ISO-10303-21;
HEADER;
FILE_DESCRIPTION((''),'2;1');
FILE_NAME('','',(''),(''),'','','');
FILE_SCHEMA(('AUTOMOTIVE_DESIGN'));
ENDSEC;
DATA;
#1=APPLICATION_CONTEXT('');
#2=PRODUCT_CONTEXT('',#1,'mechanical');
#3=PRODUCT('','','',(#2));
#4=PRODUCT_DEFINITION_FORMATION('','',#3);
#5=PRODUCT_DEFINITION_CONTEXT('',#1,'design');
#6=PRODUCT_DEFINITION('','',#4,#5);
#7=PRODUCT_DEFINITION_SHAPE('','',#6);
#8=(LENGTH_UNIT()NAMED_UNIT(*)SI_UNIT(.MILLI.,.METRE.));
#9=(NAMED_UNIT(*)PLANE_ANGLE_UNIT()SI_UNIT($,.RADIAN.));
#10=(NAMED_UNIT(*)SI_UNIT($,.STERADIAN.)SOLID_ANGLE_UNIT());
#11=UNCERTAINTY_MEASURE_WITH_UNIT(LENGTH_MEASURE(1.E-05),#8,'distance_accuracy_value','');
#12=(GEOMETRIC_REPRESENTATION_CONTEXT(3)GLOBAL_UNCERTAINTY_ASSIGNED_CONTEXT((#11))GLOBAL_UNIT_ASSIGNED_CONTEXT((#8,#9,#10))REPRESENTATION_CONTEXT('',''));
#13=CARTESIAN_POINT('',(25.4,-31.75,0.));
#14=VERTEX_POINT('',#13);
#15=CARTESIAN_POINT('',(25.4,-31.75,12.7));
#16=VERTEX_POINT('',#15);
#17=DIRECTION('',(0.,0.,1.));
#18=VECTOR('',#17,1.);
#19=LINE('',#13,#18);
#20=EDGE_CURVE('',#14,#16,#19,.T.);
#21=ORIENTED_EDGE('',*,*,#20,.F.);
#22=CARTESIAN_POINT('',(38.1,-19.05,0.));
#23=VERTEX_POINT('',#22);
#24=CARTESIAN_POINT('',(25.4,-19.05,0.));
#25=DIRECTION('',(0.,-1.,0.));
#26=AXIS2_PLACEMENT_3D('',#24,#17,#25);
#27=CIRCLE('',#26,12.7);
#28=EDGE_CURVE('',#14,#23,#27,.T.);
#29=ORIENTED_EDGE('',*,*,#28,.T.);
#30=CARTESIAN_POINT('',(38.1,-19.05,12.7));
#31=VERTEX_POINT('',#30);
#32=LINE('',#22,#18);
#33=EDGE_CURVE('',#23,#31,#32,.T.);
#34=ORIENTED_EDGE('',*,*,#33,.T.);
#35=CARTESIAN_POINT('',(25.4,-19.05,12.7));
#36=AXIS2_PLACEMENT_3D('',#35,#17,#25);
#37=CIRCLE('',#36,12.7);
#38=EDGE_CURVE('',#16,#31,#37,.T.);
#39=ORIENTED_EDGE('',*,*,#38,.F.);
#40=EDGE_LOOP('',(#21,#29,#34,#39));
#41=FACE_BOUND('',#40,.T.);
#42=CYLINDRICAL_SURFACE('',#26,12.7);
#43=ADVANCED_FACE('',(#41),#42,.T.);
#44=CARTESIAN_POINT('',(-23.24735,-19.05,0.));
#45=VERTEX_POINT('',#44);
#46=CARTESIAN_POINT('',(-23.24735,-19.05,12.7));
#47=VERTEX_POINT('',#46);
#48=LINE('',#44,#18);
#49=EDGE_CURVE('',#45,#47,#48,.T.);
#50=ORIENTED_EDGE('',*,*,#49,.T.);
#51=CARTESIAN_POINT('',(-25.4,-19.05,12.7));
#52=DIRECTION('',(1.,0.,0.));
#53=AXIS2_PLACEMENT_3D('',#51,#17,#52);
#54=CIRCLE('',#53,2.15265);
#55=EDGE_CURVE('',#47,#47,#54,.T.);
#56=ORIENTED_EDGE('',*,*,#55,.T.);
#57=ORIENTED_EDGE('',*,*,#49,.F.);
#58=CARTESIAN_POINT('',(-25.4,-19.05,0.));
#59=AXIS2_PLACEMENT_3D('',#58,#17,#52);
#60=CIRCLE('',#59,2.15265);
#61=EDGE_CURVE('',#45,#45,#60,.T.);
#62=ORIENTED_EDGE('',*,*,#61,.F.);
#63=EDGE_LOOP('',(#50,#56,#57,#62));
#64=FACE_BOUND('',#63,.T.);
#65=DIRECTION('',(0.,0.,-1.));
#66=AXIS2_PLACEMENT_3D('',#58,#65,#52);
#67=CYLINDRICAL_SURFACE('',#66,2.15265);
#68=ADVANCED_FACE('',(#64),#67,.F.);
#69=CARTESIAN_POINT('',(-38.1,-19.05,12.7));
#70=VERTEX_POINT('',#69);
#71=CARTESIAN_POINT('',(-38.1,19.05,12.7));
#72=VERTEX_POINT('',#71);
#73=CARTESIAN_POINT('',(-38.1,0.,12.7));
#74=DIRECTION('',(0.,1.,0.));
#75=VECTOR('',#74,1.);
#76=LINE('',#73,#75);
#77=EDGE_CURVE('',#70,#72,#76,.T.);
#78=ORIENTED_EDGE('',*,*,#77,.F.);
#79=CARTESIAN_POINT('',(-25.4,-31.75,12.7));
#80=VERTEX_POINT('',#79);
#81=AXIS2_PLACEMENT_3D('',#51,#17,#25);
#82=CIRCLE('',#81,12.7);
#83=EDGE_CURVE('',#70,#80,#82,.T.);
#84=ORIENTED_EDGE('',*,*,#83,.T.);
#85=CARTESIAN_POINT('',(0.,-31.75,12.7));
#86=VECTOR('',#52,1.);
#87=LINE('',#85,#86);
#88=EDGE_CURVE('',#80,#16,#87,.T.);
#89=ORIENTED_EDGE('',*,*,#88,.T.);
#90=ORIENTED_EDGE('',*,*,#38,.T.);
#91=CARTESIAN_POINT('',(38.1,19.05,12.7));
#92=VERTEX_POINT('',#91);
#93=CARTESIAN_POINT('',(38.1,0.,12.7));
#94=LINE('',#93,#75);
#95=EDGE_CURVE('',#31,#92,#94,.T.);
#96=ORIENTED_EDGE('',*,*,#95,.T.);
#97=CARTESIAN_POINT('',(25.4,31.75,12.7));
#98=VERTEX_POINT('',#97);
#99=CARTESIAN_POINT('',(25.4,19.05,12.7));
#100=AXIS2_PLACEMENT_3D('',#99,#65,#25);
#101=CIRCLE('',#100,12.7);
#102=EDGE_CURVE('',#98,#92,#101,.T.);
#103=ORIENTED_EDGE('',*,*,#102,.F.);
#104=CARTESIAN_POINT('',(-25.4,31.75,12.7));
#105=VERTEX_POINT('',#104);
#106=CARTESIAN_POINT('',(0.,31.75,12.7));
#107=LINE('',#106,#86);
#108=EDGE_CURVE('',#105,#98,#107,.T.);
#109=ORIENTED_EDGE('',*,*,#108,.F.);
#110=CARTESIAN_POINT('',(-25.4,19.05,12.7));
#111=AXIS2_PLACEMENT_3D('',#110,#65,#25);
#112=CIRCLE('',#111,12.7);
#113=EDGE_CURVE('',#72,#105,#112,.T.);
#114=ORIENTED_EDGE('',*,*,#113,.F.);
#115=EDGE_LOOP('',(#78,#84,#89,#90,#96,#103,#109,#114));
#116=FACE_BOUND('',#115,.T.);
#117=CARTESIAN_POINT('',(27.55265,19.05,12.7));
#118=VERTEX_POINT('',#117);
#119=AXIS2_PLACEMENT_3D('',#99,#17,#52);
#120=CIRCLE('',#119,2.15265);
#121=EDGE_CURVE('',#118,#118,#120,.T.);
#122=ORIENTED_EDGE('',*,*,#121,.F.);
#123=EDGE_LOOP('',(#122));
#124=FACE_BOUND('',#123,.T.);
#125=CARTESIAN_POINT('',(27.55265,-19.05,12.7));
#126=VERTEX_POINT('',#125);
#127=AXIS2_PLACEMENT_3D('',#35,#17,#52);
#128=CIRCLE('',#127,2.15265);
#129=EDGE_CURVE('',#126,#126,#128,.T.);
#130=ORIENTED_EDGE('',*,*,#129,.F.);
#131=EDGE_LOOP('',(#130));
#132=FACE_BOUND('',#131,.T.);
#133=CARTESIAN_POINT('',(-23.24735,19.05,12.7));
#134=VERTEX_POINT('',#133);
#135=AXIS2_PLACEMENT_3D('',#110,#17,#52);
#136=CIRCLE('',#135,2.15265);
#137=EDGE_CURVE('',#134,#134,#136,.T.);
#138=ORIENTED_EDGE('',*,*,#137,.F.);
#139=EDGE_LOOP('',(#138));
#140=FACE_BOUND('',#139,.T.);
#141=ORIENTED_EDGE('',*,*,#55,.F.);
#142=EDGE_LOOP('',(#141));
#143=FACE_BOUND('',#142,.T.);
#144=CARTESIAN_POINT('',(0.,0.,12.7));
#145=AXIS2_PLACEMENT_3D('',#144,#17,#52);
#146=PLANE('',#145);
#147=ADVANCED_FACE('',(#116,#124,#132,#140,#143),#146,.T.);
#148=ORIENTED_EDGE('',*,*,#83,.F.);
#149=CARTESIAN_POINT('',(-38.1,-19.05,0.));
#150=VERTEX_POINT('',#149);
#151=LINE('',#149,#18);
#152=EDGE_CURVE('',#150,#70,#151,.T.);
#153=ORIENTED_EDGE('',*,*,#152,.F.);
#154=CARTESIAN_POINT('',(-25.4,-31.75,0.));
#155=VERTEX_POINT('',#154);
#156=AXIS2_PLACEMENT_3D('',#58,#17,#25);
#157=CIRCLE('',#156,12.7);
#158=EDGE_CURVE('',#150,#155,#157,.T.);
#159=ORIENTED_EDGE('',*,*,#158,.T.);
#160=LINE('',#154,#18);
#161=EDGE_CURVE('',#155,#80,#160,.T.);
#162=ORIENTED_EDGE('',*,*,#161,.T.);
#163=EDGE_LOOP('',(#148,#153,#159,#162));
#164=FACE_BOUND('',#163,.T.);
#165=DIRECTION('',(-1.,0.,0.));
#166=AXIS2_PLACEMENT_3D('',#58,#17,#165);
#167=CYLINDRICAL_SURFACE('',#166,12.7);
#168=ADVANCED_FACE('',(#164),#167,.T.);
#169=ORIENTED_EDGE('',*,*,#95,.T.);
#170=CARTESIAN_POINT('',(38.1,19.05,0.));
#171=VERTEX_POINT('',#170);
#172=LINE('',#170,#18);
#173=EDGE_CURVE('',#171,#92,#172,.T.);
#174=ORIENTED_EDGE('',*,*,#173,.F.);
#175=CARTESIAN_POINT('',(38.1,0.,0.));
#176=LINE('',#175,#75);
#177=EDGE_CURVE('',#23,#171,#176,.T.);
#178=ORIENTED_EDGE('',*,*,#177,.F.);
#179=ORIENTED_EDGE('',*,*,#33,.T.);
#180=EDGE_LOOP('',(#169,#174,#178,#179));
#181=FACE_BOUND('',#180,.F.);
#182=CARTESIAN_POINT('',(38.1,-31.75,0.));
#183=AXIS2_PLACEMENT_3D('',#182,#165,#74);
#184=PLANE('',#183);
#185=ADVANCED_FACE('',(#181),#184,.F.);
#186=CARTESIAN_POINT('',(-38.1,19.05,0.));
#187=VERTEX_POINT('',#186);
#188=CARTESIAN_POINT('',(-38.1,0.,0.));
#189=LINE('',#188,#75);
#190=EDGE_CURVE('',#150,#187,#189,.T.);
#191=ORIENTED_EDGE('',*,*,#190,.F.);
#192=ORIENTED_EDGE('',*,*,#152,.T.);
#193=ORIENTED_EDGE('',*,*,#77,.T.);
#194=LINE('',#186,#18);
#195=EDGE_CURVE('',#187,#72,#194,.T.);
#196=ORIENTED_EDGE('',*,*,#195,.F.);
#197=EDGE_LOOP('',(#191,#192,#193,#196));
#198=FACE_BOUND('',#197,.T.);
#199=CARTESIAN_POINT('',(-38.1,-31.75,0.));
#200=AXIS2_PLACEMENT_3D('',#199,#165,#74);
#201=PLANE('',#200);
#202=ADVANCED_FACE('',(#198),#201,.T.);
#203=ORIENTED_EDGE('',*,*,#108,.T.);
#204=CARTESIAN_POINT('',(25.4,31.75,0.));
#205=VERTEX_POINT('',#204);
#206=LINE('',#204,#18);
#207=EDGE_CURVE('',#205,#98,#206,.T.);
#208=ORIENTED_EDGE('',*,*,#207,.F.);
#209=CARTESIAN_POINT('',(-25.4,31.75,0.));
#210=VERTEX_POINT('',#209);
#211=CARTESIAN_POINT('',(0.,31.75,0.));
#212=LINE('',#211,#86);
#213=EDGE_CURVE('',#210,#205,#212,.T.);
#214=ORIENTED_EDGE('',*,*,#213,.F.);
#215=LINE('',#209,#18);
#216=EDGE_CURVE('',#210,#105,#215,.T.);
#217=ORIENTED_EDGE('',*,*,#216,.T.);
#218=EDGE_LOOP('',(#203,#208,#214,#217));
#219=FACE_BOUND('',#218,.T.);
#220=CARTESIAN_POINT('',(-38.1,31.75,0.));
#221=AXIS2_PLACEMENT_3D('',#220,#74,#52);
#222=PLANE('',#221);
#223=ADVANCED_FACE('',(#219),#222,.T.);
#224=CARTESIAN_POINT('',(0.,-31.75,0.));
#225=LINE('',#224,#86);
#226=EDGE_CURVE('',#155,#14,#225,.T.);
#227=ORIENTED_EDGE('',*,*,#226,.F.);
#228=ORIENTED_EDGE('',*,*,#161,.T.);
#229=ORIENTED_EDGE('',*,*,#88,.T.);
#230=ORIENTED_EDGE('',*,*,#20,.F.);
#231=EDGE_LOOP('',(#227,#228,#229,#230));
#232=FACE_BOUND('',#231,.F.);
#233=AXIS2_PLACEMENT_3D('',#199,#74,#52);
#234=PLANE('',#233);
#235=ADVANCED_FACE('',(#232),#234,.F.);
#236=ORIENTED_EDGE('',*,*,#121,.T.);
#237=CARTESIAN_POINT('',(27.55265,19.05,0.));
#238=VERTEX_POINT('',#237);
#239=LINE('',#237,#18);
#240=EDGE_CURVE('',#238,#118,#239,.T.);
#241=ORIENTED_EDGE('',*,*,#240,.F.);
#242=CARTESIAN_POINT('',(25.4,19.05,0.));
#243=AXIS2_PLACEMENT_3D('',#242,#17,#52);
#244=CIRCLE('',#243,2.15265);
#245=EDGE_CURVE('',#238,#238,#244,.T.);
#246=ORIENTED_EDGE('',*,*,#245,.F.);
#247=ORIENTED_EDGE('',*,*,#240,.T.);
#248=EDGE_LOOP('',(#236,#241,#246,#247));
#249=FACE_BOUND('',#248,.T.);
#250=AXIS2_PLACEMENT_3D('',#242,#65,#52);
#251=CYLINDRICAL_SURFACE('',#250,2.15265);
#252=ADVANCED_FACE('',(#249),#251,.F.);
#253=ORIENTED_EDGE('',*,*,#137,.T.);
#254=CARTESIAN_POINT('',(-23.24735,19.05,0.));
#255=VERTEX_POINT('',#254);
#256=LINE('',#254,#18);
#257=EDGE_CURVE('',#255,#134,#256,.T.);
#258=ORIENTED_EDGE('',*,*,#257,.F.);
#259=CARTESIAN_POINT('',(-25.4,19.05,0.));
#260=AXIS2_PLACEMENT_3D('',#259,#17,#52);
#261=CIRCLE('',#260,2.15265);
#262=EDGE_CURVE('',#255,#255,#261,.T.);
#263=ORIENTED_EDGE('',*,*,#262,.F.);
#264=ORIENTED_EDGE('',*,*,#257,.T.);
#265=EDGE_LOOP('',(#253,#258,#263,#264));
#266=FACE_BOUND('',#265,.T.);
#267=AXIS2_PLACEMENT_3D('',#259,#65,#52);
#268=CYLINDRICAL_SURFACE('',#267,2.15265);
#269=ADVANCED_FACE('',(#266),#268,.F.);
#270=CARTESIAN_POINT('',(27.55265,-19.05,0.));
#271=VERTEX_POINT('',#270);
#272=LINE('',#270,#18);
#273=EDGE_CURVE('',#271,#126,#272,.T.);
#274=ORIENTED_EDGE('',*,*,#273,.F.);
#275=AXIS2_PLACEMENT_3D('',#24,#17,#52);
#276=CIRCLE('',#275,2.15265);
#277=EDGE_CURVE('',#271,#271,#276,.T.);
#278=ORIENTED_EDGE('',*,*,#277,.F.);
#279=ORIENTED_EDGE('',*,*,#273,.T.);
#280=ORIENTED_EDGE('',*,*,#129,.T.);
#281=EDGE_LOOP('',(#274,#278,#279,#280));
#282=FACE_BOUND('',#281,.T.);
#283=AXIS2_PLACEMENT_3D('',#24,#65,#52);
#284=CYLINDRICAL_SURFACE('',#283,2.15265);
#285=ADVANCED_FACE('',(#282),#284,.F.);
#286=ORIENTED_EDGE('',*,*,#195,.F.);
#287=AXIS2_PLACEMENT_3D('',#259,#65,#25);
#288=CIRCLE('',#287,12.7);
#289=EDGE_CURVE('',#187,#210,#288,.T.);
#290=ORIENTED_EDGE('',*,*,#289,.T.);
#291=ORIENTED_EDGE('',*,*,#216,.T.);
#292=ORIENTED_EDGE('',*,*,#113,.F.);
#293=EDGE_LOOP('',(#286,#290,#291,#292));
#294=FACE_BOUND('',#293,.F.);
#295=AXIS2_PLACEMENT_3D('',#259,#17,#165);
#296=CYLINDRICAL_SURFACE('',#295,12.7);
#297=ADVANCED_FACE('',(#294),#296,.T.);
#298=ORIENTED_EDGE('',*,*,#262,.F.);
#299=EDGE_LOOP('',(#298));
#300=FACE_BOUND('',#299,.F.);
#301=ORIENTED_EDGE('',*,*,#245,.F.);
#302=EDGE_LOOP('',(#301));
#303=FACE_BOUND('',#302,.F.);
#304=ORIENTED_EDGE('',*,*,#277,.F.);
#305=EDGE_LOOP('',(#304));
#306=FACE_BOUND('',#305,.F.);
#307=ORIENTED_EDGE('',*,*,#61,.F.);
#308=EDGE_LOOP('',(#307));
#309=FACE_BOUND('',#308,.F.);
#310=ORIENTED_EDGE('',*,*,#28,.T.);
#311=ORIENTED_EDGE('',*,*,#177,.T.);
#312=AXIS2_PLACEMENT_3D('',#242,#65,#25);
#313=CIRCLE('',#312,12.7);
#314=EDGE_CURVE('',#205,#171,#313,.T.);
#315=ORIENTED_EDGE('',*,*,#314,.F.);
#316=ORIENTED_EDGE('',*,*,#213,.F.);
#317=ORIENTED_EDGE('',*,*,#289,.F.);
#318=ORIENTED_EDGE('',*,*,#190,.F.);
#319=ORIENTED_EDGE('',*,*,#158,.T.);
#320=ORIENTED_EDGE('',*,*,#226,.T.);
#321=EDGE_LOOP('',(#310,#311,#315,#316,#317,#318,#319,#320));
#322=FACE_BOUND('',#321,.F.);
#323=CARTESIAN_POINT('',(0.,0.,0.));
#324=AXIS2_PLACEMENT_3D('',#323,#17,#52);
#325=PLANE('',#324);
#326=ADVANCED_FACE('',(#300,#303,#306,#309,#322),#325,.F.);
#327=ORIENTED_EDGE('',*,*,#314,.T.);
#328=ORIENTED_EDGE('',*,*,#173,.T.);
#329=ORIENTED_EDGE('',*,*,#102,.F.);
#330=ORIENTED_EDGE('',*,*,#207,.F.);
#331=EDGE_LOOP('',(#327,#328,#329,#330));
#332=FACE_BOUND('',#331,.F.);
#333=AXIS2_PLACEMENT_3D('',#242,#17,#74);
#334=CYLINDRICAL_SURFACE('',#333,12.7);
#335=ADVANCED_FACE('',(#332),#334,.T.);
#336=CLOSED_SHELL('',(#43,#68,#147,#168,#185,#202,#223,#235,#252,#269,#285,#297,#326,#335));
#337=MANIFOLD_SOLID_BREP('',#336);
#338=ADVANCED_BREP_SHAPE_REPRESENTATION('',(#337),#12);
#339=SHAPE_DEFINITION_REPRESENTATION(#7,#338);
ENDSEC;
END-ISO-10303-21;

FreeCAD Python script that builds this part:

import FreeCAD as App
import Part
import Sketcher

V = App.Vector
Q = App.Units.Quantity


def edges_at(feature, points):
    """Names of the edges that pass closest to the given points."""
    edges = feature.Shape.Edges
    near = lambda p: min(range(len(edges)), key=lambda i: edges[i].distToShape(Part.Vertex(*p))[0])
    return sorted({f"Edge{near(p) + 1}" for p in points})

doc = App.newDocument("Part")
body = doc.addObject("PartDesign::Body", "Body")

sketch1 = body.newObject("Sketcher::SketchObject", "Sketch")
sketch1.AttachmentSupport = (doc.getObject("XY_Plane"), [""])
sketch1.MapMode = "FlatFace"
sketch1.addGeometry([
    Part.LineSegment(V(-38.1, 31.8, 0), V(-38.1, -31.8, 0)),
    Part.LineSegment(V(-38.1, -31.8, 0), V(38.1, -31.8, 0)),
    Part.LineSegment(V(38.1, -31.8, 0), V(38.1, 31.8, 0)),
    Part.LineSegment(V(38.1, 31.8, 0), V(-38.1, 31.8, 0)),
    Part.Circle(V(-25.4, -19.1, 0), V(0, 0, 1), 2.2),
    Part.Circle(V(25.4, -19.1, 0), V(0, 0, 1), 2.2),
    Part.Circle(V(-25.4, 19.1, 0), V(0, 0, 1), 2.2),
    Part.Circle(V(25.4, 19.1, 0), V(0, 0, 1), 2.2),
], False)
sketch1.addConstraint([
    Sketcher.Constraint("Coincident", 0, 2, 1, 1),
    Sketcher.Constraint("Coincident", 1, 2, 2, 1),
    Sketcher.Constraint("Coincident", 2, 2, 3, 1),
    Sketcher.Constraint("Coincident", 3, 2, 0, 1),
    Sketcher.Constraint("Vertical", 0),
    Sketcher.Constraint("Horizontal", 1),
    Sketcher.Constraint("Vertical", 2),
    Sketcher.Constraint("Horizontal", 3),
    Sketcher.Constraint("Equal", 4, 5),
    Sketcher.Constraint("Equal", 5, 6),
    Sketcher.Constraint("Equal", 6, 7),
    Sketcher.Constraint("Symmetric", 5, 3, 6, 3, -1, 1),
    Sketcher.Constraint("Symmetric", 4, 3, 7, 3, -1, 1),
    Sketcher.Constraint("Symmetric", 0, 2, 2, 2, -1, 1),
    Sketcher.Constraint("Symmetric", 4, 3, 5, 3, -2),
    Sketcher.Constraint("DistanceX", 1, 1, 1, 2, Q("3 in")),
    Sketcher.Constraint("DistanceY", 0, 2, 0, 1, Q("2.5 in")),
    Sketcher.Constraint("DistanceX", 4, 3, -1, 1, Q("1 in")),
    Sketcher.Constraint("DistanceY", 0, 2, 6, 3, Q("2 in")),
    Sketcher.Constraint("Diameter", 4, Q("0.1695 in")),
])
pad1 = body.newObject("PartDesign::Pad", "Pad")
pad1.Profile = sketch1
pad1.Length = Q("0.5 in")
doc.recompute()

fillet = body.newObject("PartDesign::Fillet", "Fillet")
fillet.Base = (pad1, edges_at(pad1, [
    (-38.1, -31.75, 6.35),
    (38.1, -31.75, 6.35),
    (38.1, 31.75, 6.35),
    (-38.1, 31.75, 6.35),
]))
fillet.Radius = Q("0.5 in")

doc.recompute()
